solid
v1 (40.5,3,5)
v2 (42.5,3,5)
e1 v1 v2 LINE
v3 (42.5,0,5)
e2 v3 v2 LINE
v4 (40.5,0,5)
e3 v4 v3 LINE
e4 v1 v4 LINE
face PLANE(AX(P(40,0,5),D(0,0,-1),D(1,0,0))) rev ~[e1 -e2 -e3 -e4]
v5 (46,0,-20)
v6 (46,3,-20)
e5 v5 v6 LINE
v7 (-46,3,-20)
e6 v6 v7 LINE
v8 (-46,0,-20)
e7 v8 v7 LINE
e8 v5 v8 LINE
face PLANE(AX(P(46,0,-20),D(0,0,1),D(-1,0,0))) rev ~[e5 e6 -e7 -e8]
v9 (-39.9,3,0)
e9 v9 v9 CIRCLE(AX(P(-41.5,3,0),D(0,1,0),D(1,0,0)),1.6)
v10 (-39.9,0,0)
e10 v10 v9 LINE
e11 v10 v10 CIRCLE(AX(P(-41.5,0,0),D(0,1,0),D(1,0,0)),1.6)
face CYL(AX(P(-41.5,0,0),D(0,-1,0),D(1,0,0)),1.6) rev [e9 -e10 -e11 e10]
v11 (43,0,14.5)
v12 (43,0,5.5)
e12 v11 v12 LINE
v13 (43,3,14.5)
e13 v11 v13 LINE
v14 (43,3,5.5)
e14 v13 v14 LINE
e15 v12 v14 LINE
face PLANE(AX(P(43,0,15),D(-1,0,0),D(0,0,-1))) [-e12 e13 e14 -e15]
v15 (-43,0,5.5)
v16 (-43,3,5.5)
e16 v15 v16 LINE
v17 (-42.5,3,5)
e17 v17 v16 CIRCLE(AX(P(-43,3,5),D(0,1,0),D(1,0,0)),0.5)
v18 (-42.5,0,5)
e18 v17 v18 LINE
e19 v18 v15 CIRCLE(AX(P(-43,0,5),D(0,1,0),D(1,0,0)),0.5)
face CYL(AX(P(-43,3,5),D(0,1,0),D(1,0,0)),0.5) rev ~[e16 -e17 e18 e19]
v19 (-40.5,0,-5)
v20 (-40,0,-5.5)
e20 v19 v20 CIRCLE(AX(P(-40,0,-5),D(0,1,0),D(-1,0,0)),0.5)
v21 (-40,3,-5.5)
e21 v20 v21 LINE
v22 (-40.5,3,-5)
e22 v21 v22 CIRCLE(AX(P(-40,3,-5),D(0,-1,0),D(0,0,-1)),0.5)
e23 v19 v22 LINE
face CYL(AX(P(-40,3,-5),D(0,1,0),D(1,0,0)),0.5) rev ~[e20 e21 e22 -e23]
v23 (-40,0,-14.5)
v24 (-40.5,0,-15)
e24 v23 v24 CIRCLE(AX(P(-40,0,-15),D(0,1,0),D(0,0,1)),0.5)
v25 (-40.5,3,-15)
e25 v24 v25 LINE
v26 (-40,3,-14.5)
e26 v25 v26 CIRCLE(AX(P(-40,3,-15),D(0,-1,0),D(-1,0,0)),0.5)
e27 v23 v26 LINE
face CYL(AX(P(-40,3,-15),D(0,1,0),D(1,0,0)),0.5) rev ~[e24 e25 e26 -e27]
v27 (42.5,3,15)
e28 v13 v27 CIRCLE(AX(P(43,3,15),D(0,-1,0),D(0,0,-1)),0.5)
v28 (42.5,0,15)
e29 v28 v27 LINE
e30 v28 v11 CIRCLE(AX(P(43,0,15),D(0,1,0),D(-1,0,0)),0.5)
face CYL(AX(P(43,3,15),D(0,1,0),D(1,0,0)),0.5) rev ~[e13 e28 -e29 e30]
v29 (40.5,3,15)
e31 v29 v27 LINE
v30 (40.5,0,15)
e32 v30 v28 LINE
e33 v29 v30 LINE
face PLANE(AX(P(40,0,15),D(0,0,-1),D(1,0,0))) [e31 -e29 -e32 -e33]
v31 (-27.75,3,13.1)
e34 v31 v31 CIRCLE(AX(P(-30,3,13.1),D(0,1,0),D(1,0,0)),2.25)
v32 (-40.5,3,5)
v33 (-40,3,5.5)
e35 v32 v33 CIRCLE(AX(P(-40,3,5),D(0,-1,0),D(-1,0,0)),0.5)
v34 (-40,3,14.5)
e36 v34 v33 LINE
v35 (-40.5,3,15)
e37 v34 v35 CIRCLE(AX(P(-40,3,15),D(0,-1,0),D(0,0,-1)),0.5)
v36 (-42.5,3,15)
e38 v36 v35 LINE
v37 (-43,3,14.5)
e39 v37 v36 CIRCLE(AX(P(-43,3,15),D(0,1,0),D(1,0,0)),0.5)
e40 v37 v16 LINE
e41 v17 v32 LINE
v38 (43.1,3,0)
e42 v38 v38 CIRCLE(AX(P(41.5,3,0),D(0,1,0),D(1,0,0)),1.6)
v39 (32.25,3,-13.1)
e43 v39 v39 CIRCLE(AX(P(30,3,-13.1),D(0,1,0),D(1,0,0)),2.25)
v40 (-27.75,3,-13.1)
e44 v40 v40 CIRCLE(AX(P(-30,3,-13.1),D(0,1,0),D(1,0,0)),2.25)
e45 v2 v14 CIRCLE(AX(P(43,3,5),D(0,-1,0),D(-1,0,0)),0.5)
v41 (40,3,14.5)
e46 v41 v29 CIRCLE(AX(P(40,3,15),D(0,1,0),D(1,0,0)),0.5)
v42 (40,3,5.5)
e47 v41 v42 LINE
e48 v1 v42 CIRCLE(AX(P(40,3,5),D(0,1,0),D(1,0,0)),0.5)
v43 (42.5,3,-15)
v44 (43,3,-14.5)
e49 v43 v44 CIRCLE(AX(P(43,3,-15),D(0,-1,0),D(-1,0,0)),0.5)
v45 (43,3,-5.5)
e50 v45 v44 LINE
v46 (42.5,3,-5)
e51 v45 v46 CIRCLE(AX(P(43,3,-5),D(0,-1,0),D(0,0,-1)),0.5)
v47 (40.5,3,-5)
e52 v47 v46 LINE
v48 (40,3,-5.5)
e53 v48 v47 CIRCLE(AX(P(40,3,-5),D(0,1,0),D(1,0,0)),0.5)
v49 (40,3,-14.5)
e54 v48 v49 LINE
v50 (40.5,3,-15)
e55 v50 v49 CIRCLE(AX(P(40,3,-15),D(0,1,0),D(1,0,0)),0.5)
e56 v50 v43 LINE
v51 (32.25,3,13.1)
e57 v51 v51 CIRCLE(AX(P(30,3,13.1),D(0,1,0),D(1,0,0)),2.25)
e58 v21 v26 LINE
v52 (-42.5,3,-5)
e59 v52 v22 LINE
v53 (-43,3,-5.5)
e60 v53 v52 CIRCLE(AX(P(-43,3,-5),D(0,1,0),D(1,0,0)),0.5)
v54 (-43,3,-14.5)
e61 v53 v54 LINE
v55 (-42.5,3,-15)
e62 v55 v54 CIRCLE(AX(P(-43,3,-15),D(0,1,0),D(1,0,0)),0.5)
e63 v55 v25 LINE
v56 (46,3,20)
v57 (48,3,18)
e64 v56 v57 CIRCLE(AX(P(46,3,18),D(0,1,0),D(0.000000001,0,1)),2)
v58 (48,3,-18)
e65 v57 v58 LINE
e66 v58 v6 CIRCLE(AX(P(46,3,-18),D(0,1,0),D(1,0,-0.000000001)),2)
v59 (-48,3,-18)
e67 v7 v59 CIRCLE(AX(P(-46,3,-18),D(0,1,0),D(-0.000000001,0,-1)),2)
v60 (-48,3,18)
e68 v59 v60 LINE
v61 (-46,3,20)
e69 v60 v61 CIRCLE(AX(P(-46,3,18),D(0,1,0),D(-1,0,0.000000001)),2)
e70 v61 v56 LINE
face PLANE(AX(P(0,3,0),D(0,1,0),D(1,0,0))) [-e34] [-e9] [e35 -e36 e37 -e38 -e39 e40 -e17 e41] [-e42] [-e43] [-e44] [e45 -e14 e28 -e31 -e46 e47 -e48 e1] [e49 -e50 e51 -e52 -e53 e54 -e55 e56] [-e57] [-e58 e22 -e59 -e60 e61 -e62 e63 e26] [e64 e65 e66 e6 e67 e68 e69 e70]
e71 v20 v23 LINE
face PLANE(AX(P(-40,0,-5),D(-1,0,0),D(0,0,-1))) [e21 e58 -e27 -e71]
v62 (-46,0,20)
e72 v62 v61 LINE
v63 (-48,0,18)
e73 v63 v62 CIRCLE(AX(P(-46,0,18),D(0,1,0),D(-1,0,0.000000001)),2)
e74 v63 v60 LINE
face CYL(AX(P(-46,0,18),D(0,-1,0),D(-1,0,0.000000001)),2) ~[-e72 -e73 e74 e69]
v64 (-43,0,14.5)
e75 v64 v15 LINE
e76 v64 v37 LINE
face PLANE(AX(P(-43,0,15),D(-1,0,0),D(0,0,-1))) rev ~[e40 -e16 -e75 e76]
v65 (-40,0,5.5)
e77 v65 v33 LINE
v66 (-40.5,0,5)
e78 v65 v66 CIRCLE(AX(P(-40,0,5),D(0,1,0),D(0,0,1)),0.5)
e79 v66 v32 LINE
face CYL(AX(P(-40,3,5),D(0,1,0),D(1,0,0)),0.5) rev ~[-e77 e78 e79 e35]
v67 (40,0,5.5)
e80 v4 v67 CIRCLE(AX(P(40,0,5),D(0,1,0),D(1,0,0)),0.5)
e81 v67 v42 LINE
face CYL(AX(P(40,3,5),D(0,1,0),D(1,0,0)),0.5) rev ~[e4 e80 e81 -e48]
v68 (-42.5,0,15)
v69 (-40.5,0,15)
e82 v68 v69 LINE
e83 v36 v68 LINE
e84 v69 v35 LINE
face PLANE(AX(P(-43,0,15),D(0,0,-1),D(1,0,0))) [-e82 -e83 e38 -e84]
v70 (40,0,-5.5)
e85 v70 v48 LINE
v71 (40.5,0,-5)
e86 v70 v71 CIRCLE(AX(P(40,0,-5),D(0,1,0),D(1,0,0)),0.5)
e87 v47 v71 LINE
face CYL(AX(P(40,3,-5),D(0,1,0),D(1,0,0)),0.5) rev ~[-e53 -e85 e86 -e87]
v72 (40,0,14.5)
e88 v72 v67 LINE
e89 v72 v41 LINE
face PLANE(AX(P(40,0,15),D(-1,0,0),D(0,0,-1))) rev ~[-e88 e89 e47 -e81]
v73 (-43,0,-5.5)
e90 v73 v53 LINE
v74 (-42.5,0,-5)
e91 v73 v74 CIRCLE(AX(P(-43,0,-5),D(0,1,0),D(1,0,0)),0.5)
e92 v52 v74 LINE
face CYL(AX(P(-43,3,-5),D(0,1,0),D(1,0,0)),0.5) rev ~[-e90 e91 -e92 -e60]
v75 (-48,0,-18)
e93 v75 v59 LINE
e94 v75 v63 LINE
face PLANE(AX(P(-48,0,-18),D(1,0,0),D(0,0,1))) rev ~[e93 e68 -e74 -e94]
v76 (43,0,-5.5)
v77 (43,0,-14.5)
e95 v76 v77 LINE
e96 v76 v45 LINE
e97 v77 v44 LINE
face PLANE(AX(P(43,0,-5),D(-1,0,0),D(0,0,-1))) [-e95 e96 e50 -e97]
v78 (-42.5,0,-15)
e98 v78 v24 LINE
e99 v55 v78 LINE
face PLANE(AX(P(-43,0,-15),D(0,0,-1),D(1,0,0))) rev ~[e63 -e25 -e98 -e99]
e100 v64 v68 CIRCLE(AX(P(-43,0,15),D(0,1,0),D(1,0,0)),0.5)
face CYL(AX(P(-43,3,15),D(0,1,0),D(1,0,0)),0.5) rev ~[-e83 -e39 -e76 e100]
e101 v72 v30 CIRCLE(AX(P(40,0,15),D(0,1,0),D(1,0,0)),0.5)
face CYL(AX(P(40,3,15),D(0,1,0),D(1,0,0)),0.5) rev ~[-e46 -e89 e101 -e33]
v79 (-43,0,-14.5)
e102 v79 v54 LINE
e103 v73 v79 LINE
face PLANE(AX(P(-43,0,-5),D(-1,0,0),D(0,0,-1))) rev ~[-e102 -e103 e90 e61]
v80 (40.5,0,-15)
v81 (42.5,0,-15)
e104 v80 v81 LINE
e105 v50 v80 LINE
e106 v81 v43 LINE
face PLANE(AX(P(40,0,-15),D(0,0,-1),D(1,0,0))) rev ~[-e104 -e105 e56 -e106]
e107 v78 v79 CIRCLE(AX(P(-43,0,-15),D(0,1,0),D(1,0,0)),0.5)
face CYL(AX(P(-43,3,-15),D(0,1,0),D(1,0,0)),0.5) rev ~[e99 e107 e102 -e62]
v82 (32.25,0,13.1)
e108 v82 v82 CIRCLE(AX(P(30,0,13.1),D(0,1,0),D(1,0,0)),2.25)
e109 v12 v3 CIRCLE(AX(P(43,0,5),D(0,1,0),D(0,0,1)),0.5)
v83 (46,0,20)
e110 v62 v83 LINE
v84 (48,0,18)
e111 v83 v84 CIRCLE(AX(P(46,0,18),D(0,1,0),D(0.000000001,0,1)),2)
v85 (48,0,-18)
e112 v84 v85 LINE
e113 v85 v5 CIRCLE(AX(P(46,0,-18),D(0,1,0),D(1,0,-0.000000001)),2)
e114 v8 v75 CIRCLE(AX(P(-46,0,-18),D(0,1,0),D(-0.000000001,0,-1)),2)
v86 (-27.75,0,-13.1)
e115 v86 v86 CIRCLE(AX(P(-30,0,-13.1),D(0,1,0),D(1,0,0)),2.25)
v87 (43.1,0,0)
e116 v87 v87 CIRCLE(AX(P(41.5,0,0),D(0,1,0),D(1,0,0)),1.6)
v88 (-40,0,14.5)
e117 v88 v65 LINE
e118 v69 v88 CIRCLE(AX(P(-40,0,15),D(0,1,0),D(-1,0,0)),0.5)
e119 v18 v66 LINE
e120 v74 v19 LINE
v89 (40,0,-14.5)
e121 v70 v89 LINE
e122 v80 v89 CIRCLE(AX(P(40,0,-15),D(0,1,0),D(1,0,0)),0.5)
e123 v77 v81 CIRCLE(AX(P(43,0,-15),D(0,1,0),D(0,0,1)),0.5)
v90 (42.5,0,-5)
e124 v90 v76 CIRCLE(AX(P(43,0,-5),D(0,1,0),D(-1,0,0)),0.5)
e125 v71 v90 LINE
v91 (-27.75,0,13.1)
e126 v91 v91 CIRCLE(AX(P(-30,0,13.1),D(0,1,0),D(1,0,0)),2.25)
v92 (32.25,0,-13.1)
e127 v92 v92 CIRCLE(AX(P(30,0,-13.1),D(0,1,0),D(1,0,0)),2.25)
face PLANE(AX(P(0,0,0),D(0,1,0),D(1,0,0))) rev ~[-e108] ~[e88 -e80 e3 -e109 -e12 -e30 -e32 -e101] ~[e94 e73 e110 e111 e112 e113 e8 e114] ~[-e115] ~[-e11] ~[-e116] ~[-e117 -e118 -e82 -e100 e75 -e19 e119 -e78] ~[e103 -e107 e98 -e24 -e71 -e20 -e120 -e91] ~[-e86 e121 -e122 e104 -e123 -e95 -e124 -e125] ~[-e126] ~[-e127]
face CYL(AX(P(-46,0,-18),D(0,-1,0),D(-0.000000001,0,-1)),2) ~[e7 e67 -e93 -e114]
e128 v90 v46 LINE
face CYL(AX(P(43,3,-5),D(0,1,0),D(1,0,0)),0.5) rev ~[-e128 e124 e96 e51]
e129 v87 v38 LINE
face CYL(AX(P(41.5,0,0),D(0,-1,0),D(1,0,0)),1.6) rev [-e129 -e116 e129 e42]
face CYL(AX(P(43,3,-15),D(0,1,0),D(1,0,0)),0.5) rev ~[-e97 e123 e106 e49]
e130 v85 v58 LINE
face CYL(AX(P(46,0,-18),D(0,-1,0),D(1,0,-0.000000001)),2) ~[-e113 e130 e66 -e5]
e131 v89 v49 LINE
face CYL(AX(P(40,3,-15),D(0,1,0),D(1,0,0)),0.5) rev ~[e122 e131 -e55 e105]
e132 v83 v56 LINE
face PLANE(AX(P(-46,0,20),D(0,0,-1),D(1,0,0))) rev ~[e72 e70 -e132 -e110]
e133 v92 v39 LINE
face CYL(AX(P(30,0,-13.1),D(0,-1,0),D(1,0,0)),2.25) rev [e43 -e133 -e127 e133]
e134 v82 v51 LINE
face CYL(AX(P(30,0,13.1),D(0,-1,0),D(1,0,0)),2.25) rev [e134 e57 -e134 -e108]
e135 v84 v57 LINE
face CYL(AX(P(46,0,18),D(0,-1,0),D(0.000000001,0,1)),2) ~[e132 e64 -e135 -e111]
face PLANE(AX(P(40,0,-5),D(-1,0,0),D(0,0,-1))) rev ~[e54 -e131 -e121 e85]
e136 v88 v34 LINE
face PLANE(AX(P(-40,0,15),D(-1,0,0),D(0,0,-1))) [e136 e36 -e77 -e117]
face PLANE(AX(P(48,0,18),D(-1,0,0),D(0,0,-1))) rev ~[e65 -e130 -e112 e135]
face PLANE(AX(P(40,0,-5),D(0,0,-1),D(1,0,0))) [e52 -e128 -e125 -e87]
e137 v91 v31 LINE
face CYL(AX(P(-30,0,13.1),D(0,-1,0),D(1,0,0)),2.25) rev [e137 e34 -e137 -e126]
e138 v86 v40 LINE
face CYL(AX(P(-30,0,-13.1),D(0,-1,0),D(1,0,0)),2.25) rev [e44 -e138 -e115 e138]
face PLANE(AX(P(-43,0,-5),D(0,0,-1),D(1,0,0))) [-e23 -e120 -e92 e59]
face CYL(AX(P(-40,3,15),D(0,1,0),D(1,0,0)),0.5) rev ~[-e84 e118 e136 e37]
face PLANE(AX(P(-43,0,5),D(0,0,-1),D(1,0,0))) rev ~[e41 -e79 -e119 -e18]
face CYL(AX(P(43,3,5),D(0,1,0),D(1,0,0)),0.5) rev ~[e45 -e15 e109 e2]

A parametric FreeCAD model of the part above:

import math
import FreeCAD as App
import Part
import Sketcher
from FreeCAD import Vector
Q = App.Units.Quantity

doc = App.newDocument("Part")
params = doc.addObject("Spreadsheet::Sheet", "Params")
for row, (alias, value) in enumerate([
    ("sketch1_radius", "2 mm"),
    ("sketch1_diameter", "4.5 mm"),
    ("sketch1_diameter2", "3.2 mm"),
    ("sketch1_width", "92 mm"),
    ("sketch1_width2", "3 mm"),
    ("pad1_length", "3 mm"),
    ("sketch2_diameter", "1 mm"),
], start=1):
    params.set(f"A{row}", alias)
    params.set(f"B{row}", "=" + value)
    params.setAlias(f"B{row}", alias)

body = doc.addObject("PartDesign::Body", "Body")

sketch1 = body.newObject("Sketcher::SketchObject", "Sketch")
sketch1.AttachmentSupport = (doc.getObject("XZ_Plane"), [""])
sketch1.MapMode = "FlatFace"
sketch1.addGeometry([
    Part.LineSegment(Vector(-46, 20, 0), Vector(46, 20, 0)),
    Part.ArcOfCircle(Part.Circle(Vector(46, 18, 0), Vector(0, 0, 1), 2), math.radians(0), math.radians(90)),
    Part.LineSegment(Vector(48, 18, 0), Vector(48, -18, 0)),
    Part.ArcOfCircle(Part.Circle(Vector(46, -18, 0), Vector(0, 0, 1), 2), math.radians(-90), math.radians(0)),
    Part.LineSegment(Vector(46, -20, 0), Vector(-46, -20, 0)),
    Part.ArcOfCircle(Part.Circle(Vector(-46, -18, 0), Vector(0, 0, 1), 2), math.radians(-180), math.radians(-90)),
    Part.LineSegment(Vector(-48, -18, 0), Vector(-48, 18, 0)),
    Part.ArcOfCircle(Part.Circle(Vector(-46, 18, 0), Vector(0, 0, 1), 2), math.radians(90), math.radians(180)),
    Part.Circle(Vector(-30, 13.1, 0), Vector(0, 0, 1), 2.2),
    Part.LineSegment(Vector(-40, 15, 0), Vector(-43, 15, 0)),
    Part.LineSegment(Vector(-43, 15, 0), Vector(-43, 5, 0)),
    Part.LineSegment(Vector(-43, 5, 0), Vector(-40, 5, 0)),
    Part.LineSegment(Vector(-40, 5, 0), Vector(-40, 15, 0)),
    Part.Circle(Vector(-41.5, 0, 0), Vector(0, 0, 1), 1.6),
    Part.Circle(Vector(30, 13.1, 0), Vector(0, 0, 1), 2.2),
    Part.LineSegment(Vector(43, 15, 0), Vector(40, 15, 0)),
    Part.LineSegment(Vector(40, 15, 0), Vector(40, 5, 0)),
    Part.LineSegment(Vector(40, 5, 0), Vector(43, 5, 0)),
    Part.LineSegment(Vector(43, 5, 0), Vector(43, 15, 0)),
    Part.Circle(Vector(41.5, 0, 0), Vector(0, 0, 1), 1.6),
    Part.LineSegment(Vector(-40, -5, 0), Vector(-43, -5, 0)),
    Part.LineSegment(Vector(-43, -5, 0), Vector(-43, -15, 0)),
    Part.LineSegment(Vector(-43, -15, 0), Vector(-40, -15, 0)),
    Part.LineSegment(Vector(-40, -15, 0), Vector(-40, -5, 0)),
    Part.Circle(Vector(-30, -13.1, 0), Vector(0, 0, 1), 2.2),
    Part.LineSegment(Vector(43, -5, 0), Vector(40, -5, 0)),
    Part.LineSegment(Vector(40, -5, 0), Vector(40, -15, 0)),
    Part.LineSegment(Vector(40, -15, 0), Vector(43, -15, 0)),
    Part.LineSegment(Vector(43, -15, 0), Vector(43, -5, 0)),
    Part.Circle(Vector(30, -13.1, 0), Vector(0, 0, 1), 2.2),
], False)
sketch1.addConstraint([
    Sketcher.Constraint("Tangent", 0, 2, 1, 2),
    Sketcher.Constraint("Tangent", 1, 1, 2, 1),
    Sketcher.Constraint("Tangent", 2, 2, 3, 2),
    Sketcher.Constraint("Tangent", 3, 1, 4, 1),
    Sketcher.Constraint("Tangent", 4, 2, 5, 2),
    Sketcher.Constraint("Tangent", 5, 1, 6, 1),
    Sketcher.Constraint("Tangent", 6, 2, 7, 2),
    Sketcher.Constraint("Tangent", 7, 1, 0, 1),
    Sketcher.Constraint("Coincident", 9, 2, 10, 1),
    Sketcher.Constraint("Coincident", 10, 2, 11, 1),
    Sketcher.Constraint("Coincident", 11, 2, 12, 1),
    Sketcher.Constraint("Coincident", 12, 2, 9, 1),
    Sketcher.Constraint("Coincident", 15, 2, 16, 1),
    Sketcher.Constraint("Coincident", 16, 2, 17, 1),
    Sketcher.Constraint("Coincident", 17, 2, 18, 1),
    Sketcher.Constraint("Coincident", 18, 2, 15, 1),
    Sketcher.Constraint("Coincident", 20, 2, 21, 1),
    Sketcher.Constraint("Coincident", 21, 2, 22, 1),
    Sketcher.Constraint("Coincident", 22, 2, 23, 1),
    Sketcher.Constraint("Coincident", 23, 2, 20, 1),
    Sketcher.Constraint("Coincident", 25, 2, 26, 1),
    Sketcher.Constraint("Coincident", 26, 2, 27, 1),
    Sketcher.Constraint("Coincident", 27, 2, 28, 1),
    Sketcher.Constraint("Coincident", 28, 2, 25, 1),
    Sketcher.Constraint("Horizontal", 0),
    Sketcher.Constraint("Vertical", 2),
    Sketcher.Constraint("Horizontal", 4),
    Sketcher.Constraint("Vertical", 6),
    Sketcher.Constraint("Horizontal", 9),
    Sketcher.Constraint("Vertical", 10),
    Sketcher.Constraint("Horizontal", 11),
    Sketcher.Constraint("Vertical", 12),
    Sketcher.Constraint("Horizontal", 15),
    Sketcher.Constraint("Vertical", 16),
    Sketcher.Constraint("Horizontal", 17),
    Sketcher.Constraint("Vertical", 18),
    Sketcher.Constraint("Horizontal", 20),
    Sketcher.Constraint("Vertical", 21),
    Sketcher.Constraint("Horizontal", 22),
    Sketcher.Constraint("Vertical", 23),
    Sketcher.Constraint("Horizontal", 25),
    Sketcher.Constraint("Vertical", 26),
    Sketcher.Constraint("Horizontal", 27),
    Sketcher.Constraint("Vertical", 28),
    Sketcher.Constraint("Equal", 1, 3),
    Sketcher.Constraint("Equal", 3, 5),
    Sketcher.Constraint("Equal", 5, 7),
    Sketcher.Constraint("Equal", 8, 14),
    Sketcher.Constraint("Equal", 13, 19),
    Sketcher.Constraint("Equal", 14, 24),
    Sketcher.Constraint("Equal", 24, 29),
    Sketcher.Constraint("Symmetric", 1, 3, 5, 3, -1, 1),
    Sketcher.Constraint("Symmetric", 13, 3, 19, 3, -1, 1),
    Sketcher.Constraint("Symmetric", 14, 3, 24, 3, -1, 1),
    Sketcher.Constraint("Symmetric", 8, 3, 29, 3, -1, 1),
    Sketcher.Constraint("Symmetric", 17, 2, 20, 2, -1, 1),
    Sketcher.Constraint("Symmetric", 15, 2, 22, 2, -1, 1),
    Sketcher.Constraint("Symmetric", 11, 2, 25, 2, -1, 1),
    Sketcher.Constraint("Symmetric", 9, 2, 27, 2, -1, 1),
    Sketcher.Constraint("Symmetric", 8, 3, 14, 3, -2),
    Sketcher.Constraint("Symmetric", 12, 2, 15, 2, -2),
    Sketcher.Constraint("Symmetric", 10, 2, 17, 2, -2),
    Sketcher.Constraint("PointOnObject", 13, 3, -1),
    Sketcher.Constraint("Radius", 1, Q("2 mm")),
    Sketcher.Constraint("Diameter", 8, Q("4.5 mm")),
    Sketcher.Constraint("Diameter", 13, Q("3.2 mm")),
    Sketcher.Constraint("DistanceX", 0, 1, 0, 2, Q("92 mm")),
    Sketcher.Constraint("DistanceX", 9, 2, 9, 1, Q("3 mm")),
    Sketcher.Constraint("DistanceY", 2, 2, 2, 1, Q("36 mm")),
    Sketcher.Constraint("DistanceY", 10, 2, 10, 1, Q("10 mm")),
    Sketcher.Constraint("DistanceX", 8, 3, -1, 1, Q("30 mm")),
    Sketcher.Constraint("DistanceX", 9, 2, -1, 1, Q("43 mm")),
    Sketcher.Constraint("DistanceY", -1, 1, 9, 2, Q("15 mm")),
    Sketcher.Constraint("DistanceX", 13, 3, 19, 3, Q("83 mm")),
    Sketcher.Constraint("DistanceY", -1, 1, 8, 3, Q("13.1 mm")),
])
sketch1.setExpression("Constraints[63]", "Params.sketch1_radius")
sketch1.setExpression("Constraints[64]", "Params.sketch1_diameter")
sketch1.setExpression("Constraints[65]", "Params.sketch1_diameter2")
sketch1.setExpression("Constraints[66]", "Params.sketch1_width")
sketch1.setExpression("Constraints[67]", "Params.sketch1_width2")
pad1 = body.newObject("PartDesign::Pad", "Pad")
pad1.Profile = sketch1
pad1.setExpression("Length", "Params.pad1_length")
pad1.Reversed = True

sketch2 = body.newObject("Sketcher::SketchObject", "Sketch001")
sketch2.AttachmentSupport = (doc.getObject("XZ_Plane"), [""])
sketch2.MapMode = "FlatFace"
sketch2.AttachmentOffset = App.Placement(Vector(0, 0, -3), App.Rotation())
sketch2.addGeometry([
    Part.Circle(Vector(-43, -15, 0), Vector(0, 0, 1), 0.5),
    Part.Circle(Vector(-40, -15, 0), Vector(0, 0, 1), 0.5),
    Part.Circle(Vector(-40, -5, 0), Vector(0, 0, 1), 0.5),
    Part.Circle(Vector(-43, -5, 0), Vector(0, 0, 1), 0.5),
    Part.Circle(Vector(-43, 5, 0), Vector(0, 0, 1), 0.5),
    Part.Circle(Vector(-40, 5, 0), Vector(0, 0, 1), 0.5),
    Part.Circle(Vector(-43, 15, 0), Vector(0, 0, 1), 0.5),
    Part.Circle(Vector(-40, 15, 0), Vector(0, 0, 1), 0.5),
    Part.Circle(Vector(40, 15, 0), Vector(0, 0, 1), 0.5),
    Part.Circle(Vector(43, 15, 0), Vector(0, 0, 1), 0.5),
    Part.Circle(Vector(43, 5, 0), Vector(0, 0, 1), 0.5),
    Part.Circle(Vector(40, 5, 0), Vector(0, 0, 1), 0.5),
    Part.Circle(Vector(40, -5, 0), Vector(0, 0, 1), 0.5),
    Part.Circle(Vector(43, -5, 0), Vector(0, 0, 1), 0.5),
    Part.Circle(Vector(43, -15, 0), Vector(0, 0, 1), 0.5),
    Part.Circle(Vector(40, -15, 0), Vector(0, 0, 1), 0.5),
], False)
sketch2.addConstraint([
    Sketcher.Constraint("Equal", 0, 1),
    Sketcher.Constraint("Equal", 1, 2),
    Sketcher.Constraint("Equal", 2, 3),
    Sketcher.Constraint("Equal", 3, 4),
    Sketcher.Constraint("Equal", 4, 5),
    Sketcher.Constraint("Equal", 5, 6),
    Sketcher.Constraint("Equal", 6, 7),
    Sketcher.Constraint("Equal", 7, 8),
    Sketcher.Constraint("Equal", 8, 9),
    Sketcher.Constraint("Equal", 9, 10),
    Sketcher.Constraint("Equal", 10, 11),
    Sketcher.Constraint("Equal", 11, 12),
    Sketcher.Constraint("Equal", 12, 13),
    Sketcher.Constraint("Equal", 13, 14),
    Sketcher.Constraint("Equal", 14, 15),
    Sketcher.Constraint("Symmetric", 1, 3, 8, 3, -1, 1),
    Sketcher.Constraint("Symmetric", 0, 3, 9, 3, -1, 1),
    Sketcher.Constraint("Symmetric", 3, 3, 10, 3, -1, 1),
    Sketcher.Constraint("Symmetric", 2, 3, 11, 3, -1, 1),
    Sketcher.Constraint("Symmetric", 5, 3, 12, 3, -1, 1),
    Sketcher.Constraint("Symmetric", 4, 3, 13, 3, -1, 1),
    Sketcher.Constraint("Symmetric", 6, 3, 14, 3, -1, 1),
    Sketcher.Constraint("Symmetric", 7, 3, 15, 3, -1, 1),
    Sketcher.Constraint("Symmetric", 7, 3, 8, 3, -2),
    Sketcher.Constraint("Symmetric", 6, 3, 9, 3, -2),
    Sketcher.Constraint("Symmetric", 4, 3, 10, 3, -2),
    Sketcher.Constraint("Symmetric", 5, 3, 11, 3, -2),
    Sketcher.Constraint("Horizontal", 0, 3, 1, 3),
    Sketcher.Constraint("Horizontal", 2, 3, 3, 3),
    Sketcher.Constraint("Vertical", 1, 3, 2, 3),
    Sketcher.Constraint("Vertical", 0, 3, 3, 3),
    Sketcher.Constraint("Diameter", 0, Q("1 mm")),
    Sketcher.Constraint("DistanceX", 0, 3, -1, 1, Q("43 mm")),
    Sketcher.Constraint("DistanceY", 0, 3, -1, 1, Q("15 mm")),
    Sketcher.Constraint("DistanceX", 1, 3, -1, 1, Q("40 mm")),
    Sketcher.Constraint("DistanceY", 2, 3, -1, 1, Q("5 mm")),
])
sketch2.setExpression("Constraints[31]", "Params.sketch2_diameter")
pocket1 = body.newObject("PartDesign::Pocket", "Pocket")
pocket1.Profile = sketch2
pocket1.Type = "ThroughAll"
pocket1.Reversed = True

doc.recompute()
